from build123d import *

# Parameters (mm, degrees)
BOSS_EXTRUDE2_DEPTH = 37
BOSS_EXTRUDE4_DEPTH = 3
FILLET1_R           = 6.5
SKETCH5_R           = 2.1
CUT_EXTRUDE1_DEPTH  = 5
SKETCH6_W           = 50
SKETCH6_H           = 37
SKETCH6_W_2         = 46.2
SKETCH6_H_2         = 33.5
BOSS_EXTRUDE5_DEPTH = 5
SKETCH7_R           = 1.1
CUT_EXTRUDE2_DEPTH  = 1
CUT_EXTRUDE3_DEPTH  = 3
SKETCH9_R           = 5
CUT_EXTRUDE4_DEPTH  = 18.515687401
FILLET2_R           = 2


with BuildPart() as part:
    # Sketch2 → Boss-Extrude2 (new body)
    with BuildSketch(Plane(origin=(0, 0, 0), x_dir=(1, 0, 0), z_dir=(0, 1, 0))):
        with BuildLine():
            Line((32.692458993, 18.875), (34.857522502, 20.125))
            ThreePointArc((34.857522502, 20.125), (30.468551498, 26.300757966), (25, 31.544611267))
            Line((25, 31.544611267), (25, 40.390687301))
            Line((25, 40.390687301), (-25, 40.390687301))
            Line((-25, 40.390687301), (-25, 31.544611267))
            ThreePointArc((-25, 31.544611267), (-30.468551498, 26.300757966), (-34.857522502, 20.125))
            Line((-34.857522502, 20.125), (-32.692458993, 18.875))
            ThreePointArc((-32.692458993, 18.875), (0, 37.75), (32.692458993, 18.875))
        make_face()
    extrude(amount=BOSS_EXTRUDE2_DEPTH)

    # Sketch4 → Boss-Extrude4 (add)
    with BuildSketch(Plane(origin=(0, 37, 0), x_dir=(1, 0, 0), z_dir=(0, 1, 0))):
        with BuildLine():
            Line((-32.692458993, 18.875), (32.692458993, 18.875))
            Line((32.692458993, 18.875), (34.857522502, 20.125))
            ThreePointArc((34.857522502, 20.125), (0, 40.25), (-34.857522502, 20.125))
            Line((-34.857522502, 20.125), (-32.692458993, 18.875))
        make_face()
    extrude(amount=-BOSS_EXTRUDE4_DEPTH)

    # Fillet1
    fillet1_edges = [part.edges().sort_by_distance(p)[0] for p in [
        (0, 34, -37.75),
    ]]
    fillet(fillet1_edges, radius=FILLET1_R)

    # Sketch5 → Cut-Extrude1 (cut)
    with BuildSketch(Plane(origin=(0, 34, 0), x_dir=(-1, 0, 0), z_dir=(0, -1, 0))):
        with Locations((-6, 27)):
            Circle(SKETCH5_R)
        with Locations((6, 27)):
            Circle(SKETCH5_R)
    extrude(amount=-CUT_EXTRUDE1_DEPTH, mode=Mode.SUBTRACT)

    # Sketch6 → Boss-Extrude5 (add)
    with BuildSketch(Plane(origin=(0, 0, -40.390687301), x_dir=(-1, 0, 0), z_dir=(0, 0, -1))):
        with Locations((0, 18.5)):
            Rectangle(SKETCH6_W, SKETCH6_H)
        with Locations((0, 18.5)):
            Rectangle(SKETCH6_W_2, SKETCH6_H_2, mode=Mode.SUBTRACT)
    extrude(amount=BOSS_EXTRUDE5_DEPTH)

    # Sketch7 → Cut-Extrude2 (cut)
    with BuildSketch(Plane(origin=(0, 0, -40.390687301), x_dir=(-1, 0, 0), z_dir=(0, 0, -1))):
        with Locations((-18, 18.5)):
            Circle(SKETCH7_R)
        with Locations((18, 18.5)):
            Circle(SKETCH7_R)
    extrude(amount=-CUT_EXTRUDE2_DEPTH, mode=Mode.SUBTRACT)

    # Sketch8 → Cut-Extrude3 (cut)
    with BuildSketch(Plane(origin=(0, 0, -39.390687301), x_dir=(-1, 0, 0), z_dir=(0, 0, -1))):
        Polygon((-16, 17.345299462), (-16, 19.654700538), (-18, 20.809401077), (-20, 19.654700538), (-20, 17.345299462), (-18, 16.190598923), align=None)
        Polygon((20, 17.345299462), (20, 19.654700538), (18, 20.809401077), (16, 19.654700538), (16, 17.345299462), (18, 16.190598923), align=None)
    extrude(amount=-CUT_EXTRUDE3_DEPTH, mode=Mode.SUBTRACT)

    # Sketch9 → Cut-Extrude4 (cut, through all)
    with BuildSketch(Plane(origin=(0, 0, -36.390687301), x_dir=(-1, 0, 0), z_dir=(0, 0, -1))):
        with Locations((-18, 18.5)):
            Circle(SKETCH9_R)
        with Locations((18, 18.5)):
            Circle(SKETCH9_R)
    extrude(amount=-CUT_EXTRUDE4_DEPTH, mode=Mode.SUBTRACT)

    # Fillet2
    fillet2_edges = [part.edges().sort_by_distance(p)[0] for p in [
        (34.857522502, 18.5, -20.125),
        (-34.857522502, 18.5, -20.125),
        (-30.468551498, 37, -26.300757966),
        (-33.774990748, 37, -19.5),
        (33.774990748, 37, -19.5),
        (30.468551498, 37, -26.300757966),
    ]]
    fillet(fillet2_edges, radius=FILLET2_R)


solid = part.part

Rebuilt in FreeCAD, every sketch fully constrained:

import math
import FreeCAD as App
import Part
import Sketcher
Q = App.Units.Quantity


def edges_at(feature, points):
    """Names of the edges that pass closest to the given points."""
    edges = feature.Shape.Edges
    near = lambda p: min(range(len(edges)), key=lambda i: edges[i].distToShape(Part.Vertex(*p))[0])
    return sorted({f"Edge{near(p) + 1}" for p in points})


def add_polygon(sketch, points):
    """Adds a closed chain of lines whose ends are joined by coincident constraints."""
    first, n = sketch.GeometryCount, len(points)
    for a, b in zip(points, points[1:] + points[:1]):
        sketch.addGeometry(Part.LineSegment(App.Vector(*a, 0), App.Vector(*b, 0)), False)
    for i in range(n):
        sketch.addConstraint(Sketcher.Constraint("Coincident", first + i, 2, first + (i + 1) % n, 1))

doc = App.newDocument("Part")
body = doc.addObject("PartDesign::Body", "Body")

# Sketch on XZ plane
sketch1 = body.newObject("Sketcher::SketchObject", "Sketch")
sketch1.AttachmentSupport = (doc.getObject("XZ_Plane"), [""])
sketch1.MapMode = "FlatFace"
sketch1.addGeometry(Part.LineSegment(App.Vector(32.7, -18.9, 0), App.Vector(34.9, -20.1, 0)), False)
sketch1.addGeometry(Part.ArcOfCircle(Part.Circle(App.Vector(0, 0, 0), App.Vector(0, 0, 1), 40.3), math.radians(-52), math.radians(-30)), False)
sketch1.addGeometry(Part.LineSegment(App.Vector(25, -31.5, 0), App.Vector(25, -40.4, 0)), False)
sketch1.addGeometry(Part.LineSegment(App.Vector(25, -40.4, 0), App.Vector(-25, -40.4, 0)), False)
sketch1.addGeometry(Part.LineSegment(App.Vector(-25, -40.4, 0), App.Vector(-25, -31.5, 0)), False)
sketch1.addGeometry(Part.ArcOfCircle(Part.Circle(App.Vector(0, 0, 0), App.Vector(0, 0, 1), 40.3), math.radians(-150), math.radians(-128)), False)
sketch1.addGeometry(Part.LineSegment(App.Vector(-34.9, -20.1, 0), App.Vector(-32.7, -18.9, 0)), False)
sketch1.addGeometry(Part.ArcOfCircle(Part.Circle(App.Vector(0, 0, 0), App.Vector(0, 0, 1), 37.8), math.radians(-150), math.radians(-30)), False)
sketch1.addConstraint(Sketcher.Constraint("Coincident", 0, 2, 1, 2))
sketch1.addConstraint(Sketcher.Constraint("Coincident", 1, 1, 2, 1))
sketch1.addConstraint(Sketcher.Constraint("Coincident", 2, 2, 3, 1))
sketch1.addConstraint(Sketcher.Constraint("Coincident", 3, 2, 4, 1))
sketch1.addConstraint(Sketcher.Constraint("Coincident", 4, 2, 5, 2))
sketch1.addConstraint(Sketcher.Constraint("Coincident", 5, 1, 6, 1))
sketch1.addConstraint(Sketcher.Constraint("Coincident", 6, 2, 7, 1))
sketch1.addConstraint(Sketcher.Constraint("Coincident", 7, 2, 0, 1))
sketch1.addConstraint(Sketcher.Constraint("Vertical", 2))
sketch1.addConstraint(Sketcher.Constraint("Horizontal", 3))
sketch1.addConstraint(Sketcher.Constraint("Vertical", 4))
sketch1.addConstraint(Sketcher.Constraint("Coincident", 1, 3, -1, 1))
sketch1.addConstraint(Sketcher.Constraint("Coincident", 5, 3, -1, 1))
sketch1.addConstraint(Sketcher.Constraint("Coincident", 7, 3, -1, 1))
sketch1.addConstraint(Sketcher.Constraint("Equal", 1, 5))
sketch1.addConstraint(Sketcher.Constraint("Horizontal", 1, 1, 4, 2))
sketch1.addConstraint(Sketcher.Constraint("Horizontal", 0, 2, 5, 1))
sketch1.addConstraint(Sketcher.Constraint("Horizontal", 6, 2, 7, 2))
sketch1.addConstraint(Sketcher.Constraint("DistanceX", 3, 2, 3, 1, Q("50 mm")))
sketch1.addConstraint(Sketcher.Constraint("Angle", 0, Q("-30 deg")))
sketch1.addConstraint(Sketcher.Constraint("Radius", 1, Q("40.25 mm")))
sketch1.addConstraint(Sketcher.Constraint("Radius", 7, Q("37.75 mm")))
sketch1.addConstraint(Sketcher.Constraint("DistanceY", 0, 2, -1, 1, Q("20.125 mm")))
sketch1.addConstraint(Sketcher.Constraint("DistanceY", 2, 2, 2, 1, Q("8.846076 mm")))
pad1 = body.newObject("PartDesign::Pad", "Pad")
pad1.Profile = sketch1
pad1.Length = 37
pad1.Reversed = True

# Sketch on XZ plane
sketch2 = body.newObject("Sketcher::SketchObject", "Sketch001")
sketch2.AttachmentSupport = (doc.getObject("XZ_Plane"), [""])
sketch2.MapMode = "FlatFace"
sketch2.AttachmentOffset = App.Placement(App.Vector(0, 0, -37), App.Rotation())
sketch2.addGeometry(Part.LineSegment(App.Vector(-32.7, -18.9, 0), App.Vector(32.7, -18.9, 0)), False)
sketch2.addGeometry(Part.LineSegment(App.Vector(32.7, -18.9, 0), App.Vector(34.9, -20.1, 0)), False)
sketch2.addGeometry(Part.ArcOfCircle(Part.Circle(App.Vector(0, 0, 0), App.Vector(0, 0, 1), 40.2), math.radians(-150), math.radians(-30)), False)
sketch2.addGeometry(Part.LineSegment(App.Vector(-34.9, -20.1, 0), App.Vector(-32.7, -18.9, 0)), False)
sketch2.addConstraint(Sketcher.Constraint("Coincident", 0, 2, 1, 1))
sketch2.addConstraint(Sketcher.Constraint("Coincident", 1, 2, 2, 2))
sketch2.addConstraint(Sketcher.Constraint("Coincident", 2, 1, 3, 1))
sketch2.addConstraint(Sketcher.Constraint("Coincident", 3, 2, 0, 1))
sketch2.addConstraint(Sketcher.Constraint("Horizontal", 0))
sketch2.addConstraint(Sketcher.Constraint("Coincident", 2, 3, -1, 1))
sketch2.addConstraint(Sketcher.Constraint("Horizontal", 1, 2, 2, 1))
sketch2.addConstraint(Sketcher.Constraint("Equal", 1, 3))
sketch2.addConstraint(Sketcher.Constraint("Angle", 1, Q("-30 deg")))
sketch2.addConstraint(Sketcher.Constraint("Radius", 2, Q("40.25 mm")))
sketch2.addConstraint(Sketcher.Constraint("Distance", 1, Q("2.5 mm")))
sketch2.addConstraint(Sketcher.Constraint("DistanceY", 0, 2, -1, 1, Q("18.875 mm")))
pad2 = body.newObject("PartDesign::Pad", "Pad001")
pad2.Profile = sketch2
pad2.Length = 3
doc.recompute()

fillet = body.newObject("PartDesign::Fillet", "Fillet")
fillet.Base = (pad2, edges_at(pad2, [(0, 34, -37.75)]))
fillet.Radius = 6.5

# Sketch on XZ plane
sketch3 = body.newObject("Sketcher::SketchObject", "Sketch002")
sketch3.AttachmentSupport = (doc.getObject("XZ_Plane"), [""])
sketch3.MapMode = "FlatFace"
sketch3.AttachmentOffset = App.Placement(App.Vector(0, 0, -34), App.Rotation())
sketch3.addGeometry(Part.Circle(App.Vector(6, -27, 0), App.Vector(0, 0, 1), 2.1), False)
sketch3.addGeometry(Part.Circle(App.Vector(-6, -27, 0), App.Vector(0, 0, 1), 2.1), False)
sketch3.addConstraint(Sketcher.Constraint("Equal", 0, 1))
sketch3.addConstraint(Sketcher.Constraint("Symmetric", 0, 3, 1, 3, -2))
sketch3.addConstraint(Sketcher.Constraint("Diameter", 0, Q("4.2 mm")))
sketch3.addConstraint(Sketcher.Constraint("DistanceX", -1, 1, 0, 3, Q("6 mm")))
sketch3.addConstraint(Sketcher.Constraint("DistanceY", 0, 3, -1, 1, Q("27 mm")))
pocket1 = body.newObject("PartDesign::Pocket", "Pocket")
pocket1.Profile = sketch3
pocket1.Length = 5

# Sketch on XY plane
sketch4 = body.newObject("Sketcher::SketchObject", "Sketch003")
sketch4.AttachmentSupport = (doc.getObject("XY_Plane"), [""])
sketch4.MapMode = "FlatFace"
sketch4.AttachmentOffset = App.Placement(App.Vector(0, 0, -40.390687), App.Rotation())
add_polygon(sketch4, [(25, 37), (25, 0), (-25, 0), (-25, 37)])  # lines 0-3
add_polygon(sketch4, [(-23, 2), (23, 2), (23, 35), (-23, 35)])  # lines 4-7
sketch4.addConstraint(Sketcher.Constraint("Vertical", 0))
sketch4.addConstraint(Sketcher.Constraint("Horizontal", 1))
sketch4.addConstraint(Sketcher.Constraint("Vertical", 2))
sketch4.addConstraint(Sketcher.Constraint("Horizontal", 3))
sketch4.addConstraint(Sketcher.Constraint("Horizontal", 4))
sketch4.addConstraint(Sketcher.Constraint("Vertical", 5))
sketch4.addConstraint(Sketcher.Constraint("Horizontal", 6))
sketch4.addConstraint(Sketcher.Constraint("Vertical", 7))
sketch4.addConstraint(Sketcher.Constraint("Symmetric", 0, 2, 1, 2, -1, 1))
sketch4.addConstraint(Sketcher.Constraint("DistanceX", 1, 2, 1, 1, Q("50 mm")))
sketch4.addConstraint(Sketcher.Constraint("DistanceY", 0, 2, 0, 1, Q("37 mm")))
sketch4.addConstraint(Sketcher.Constraint("DistanceX", 4, 1, 4, 2, Q("46.2 mm")))
sketch4.addConstraint(Sketcher.Constraint("DistanceY", 5, 1, 5, 2, Q("33.5 mm")))
sketch4.addConstraint(Sketcher.Constraint("DistanceX", -1, 1, 4, 2, Q("23.1 mm")))
sketch4.addConstraint(Sketcher.Constraint("DistanceY", -1, 1, 4, 2, Q("1.75 mm")))
pad3 = body.newObject("PartDesign::Pad", "Pad002")
pad3.Profile = sketch4
pad3.Length = 5
pad3.Reversed = True

# Sketch on XY plane
sketch5 = body.newObject("Sketcher::SketchObject", "Sketch004")
sketch5.AttachmentSupport = (doc.getObject("XY_Plane"), [""])
sketch5.MapMode = "FlatFace"
sketch5.AttachmentOffset = App.Placement(App.Vector(0, 0, -40.390687), App.Rotation())
sketch5.addGeometry(Part.Circle(App.Vector(18, 18.5, 0), App.Vector(0, 0, 1), 1.1), False)
sketch5.addGeometry(Part.Circle(App.Vector(-18, 18.5, 0), App.Vector(0, 0, 1), 1.1), False)
sketch5.addConstraint(Sketcher.Constraint("Equal", 0, 1))
sketch5.addConstraint(Sketcher.Constraint("Symmetric", 0, 3, 1, 3, -2))
sketch5.addConstraint(Sketcher.Constraint("Diameter", 0, Q("2.2 mm")))
sketch5.addConstraint(Sketcher.Constraint("DistanceX", -1, 1, 0, 3, Q("18 mm")))
sketch5.addConstraint(Sketcher.Constraint("DistanceY", -1, 1, 0, 3, Q("18.5 mm")))
pocket2 = body.newObject("PartDesign::Pocket", "Pocket001")
pocket2.Profile = sketch5
pocket2.Length = 1
pocket2.Reversed = True

# Sketch on XY plane
sketch6 = body.newObject("Sketcher::SketchObject", "Sketch005")
sketch6.AttachmentSupport = (doc.getObject("XY_Plane"), [""])
sketch6.MapMode = "FlatFace"
sketch6.AttachmentOffset = App.Placement(App.Vector(0, 0, -39.390687), App.Rotation())
add_polygon(sketch6, [(16, 17.3), (16, 19.7), (18, 20.8), (20, 19.7), (20, 17.3), (18, 16.2)])  # lines 0-5
add_polygon(sketch6, [(-20, 17.3), (-20, 19.7), (-18, 20.8), (-16, 19.7), (-16, 17.3), (-18, 16.2)])  # lines 6-11
sketch6.addConstraint(Sketcher.Constraint("Vertical", 0))
sketch6.addConstraint(Sketcher.Constraint("Vertical", 3))
sketch6.addConstraint(Sketcher.Constraint("Vertical", 6))
sketch6.addConstraint(Sketcher.Constraint("Vertical", 9))
sketch6.addConstraint(Sketcher.Constraint("Symmetric", 2, 2, 6, 2, -2))
sketch6.addConstraint(Sketcher.Constraint("Symmetric", 1, 2, 7, 2, -2))
sketch6.addConstraint(Sketcher.Constraint("Symmetric", 0, 2, 8, 2, -2))
sketch6.addConstraint(Sketcher.Constraint("Symmetric", 4, 2, 10, 2, -2))
sketch6.addConstraint(Sketcher.Constraint("Parallel", 1, 4))
sketch6.addConstraint(Sketcher.Constraint("Parallel", 2, 5))
sketch6.addConstraint(Sketcher.Constraint("Parallel", 4, 7))
sketch6.addConstraint(Sketcher.Constraint("Parallel", 7, 10))
sketch6.addConstraint(Sketcher.Constraint("Parallel", 8, 11))
sketch6.addConstraint(Sketcher.Constraint("Horizontal", 0, 2, 2, 2))
sketch6.addConstraint(Sketcher.Constraint("Horizontal", 3, 2, 5, 2))
sketch6.addConstraint(Sketcher.Constraint("Angle", 1, Q("30 deg")))
sketch6.addConstraint(Sketcher.Constraint("DistanceX", -1, 1, 0, 2, Q("16 mm")))
sketch6.addConstraint(Sketcher.Constraint("DistanceX", -1, 1, 1, 2, Q("18 mm")))
sketch6.addConstraint(Sketcher.Constraint("DistanceY", 0, 1, 0, 2, Q("2.309401 mm")))
sketch6.addConstraint(Sketcher.Constraint("DistanceY", -1, 1, 0, 2, Q("19.654701 mm")))
pocket3 = body.newObject("PartDesign::Pocket", "Pocket002")
pocket3.Profile = sketch6
pocket3.Length = 3
pocket3.Reversed = True

# Sketch on XY plane
sketch7 = body.newObject("Sketcher::SketchObject", "Sketch006")
sketch7.AttachmentSupport = (doc.getObject("XY_Plane"), [""])
sketch7.MapMode = "FlatFace"
sketch7.AttachmentOffset = App.Placement(App.Vector(0, 0, -36.390687), App.Rotation())
sketch7.addGeometry(Part.Circle(App.Vector(18, 18, 0), App.Vector(0, 0, 1), 5), False)
sketch7.addGeometry(Part.Circle(App.Vector(-18, 18, 0), App.Vector(0, 0, 1), 5), False)
sketch7.addConstraint(Sketcher.Constraint("Equal", 0, 1))
sketch7.addConstraint(Sketcher.Constraint("Symmetric", 0, 3, 1, 3, -2))
sketch7.addConstraint(Sketcher.Constraint("Diameter", 0, Q("10 mm")))
sketch7.addConstraint(Sketcher.Constraint("DistanceX", -1, 1, 0, 3, Q("18 mm")))
sketch7.addConstraint(Sketcher.Constraint("DistanceY", -1, 1, 0, 3, Q("18.5 mm")))
pocket4 = body.newObject("PartDesign::Pocket", "Pocket003")
pocket4.Profile = sketch7
pocket4.Type = "ThroughAll"
pocket4.Reversed = True
doc.recompute()

fillet2 = body.newObject("PartDesign::Fillet", "Fillet001")
fillet2.Base = (pocket4, edges_at(pocket4, [
    (34.858, 18.5, -20.125),
    (-34.858, 18.5, -20.125),
    (-30.469, 37, -26.301),
    (-33.775, 37, -19.5),
    (33.775, 37, -19.5),
    (30.469, 37, -26.301),
]))
fillet2.Radius = 2

doc.recompute()
